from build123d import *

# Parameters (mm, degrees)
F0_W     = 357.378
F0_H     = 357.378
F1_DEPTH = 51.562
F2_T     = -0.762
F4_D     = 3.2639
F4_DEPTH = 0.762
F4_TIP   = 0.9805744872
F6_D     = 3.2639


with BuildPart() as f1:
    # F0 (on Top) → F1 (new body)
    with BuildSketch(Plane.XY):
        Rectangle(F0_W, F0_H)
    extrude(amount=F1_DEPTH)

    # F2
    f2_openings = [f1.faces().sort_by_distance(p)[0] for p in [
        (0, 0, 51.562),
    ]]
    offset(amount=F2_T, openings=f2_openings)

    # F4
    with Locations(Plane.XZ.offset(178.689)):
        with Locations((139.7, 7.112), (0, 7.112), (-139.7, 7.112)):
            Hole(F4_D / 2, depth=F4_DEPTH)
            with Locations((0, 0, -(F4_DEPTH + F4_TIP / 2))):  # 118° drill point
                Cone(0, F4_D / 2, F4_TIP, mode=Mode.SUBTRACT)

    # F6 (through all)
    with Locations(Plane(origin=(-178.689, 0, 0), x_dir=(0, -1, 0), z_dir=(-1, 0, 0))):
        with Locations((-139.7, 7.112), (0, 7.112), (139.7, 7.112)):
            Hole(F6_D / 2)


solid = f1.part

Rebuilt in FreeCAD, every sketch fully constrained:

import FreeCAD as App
import Part
import Sketcher
Q = App.Units.Quantity


def faces_at(feature, points):
    """Names of the faces that lie closest to the given points."""
    faces = feature.Shape.Faces
    near = lambda p: min(range(len(faces)), key=lambda i: faces[i].distToShape(Part.Vertex(*p))[0])
    return sorted({f"Face{near(p) + 1}" for p in points})

doc = App.newDocument("Part")
body = doc.addObject("PartDesign::Body", "Body")

# Sketch on XY plane
sketch1 = doc.addObject("Sketcher::SketchObject", "Sketch")
body.addObject(sketch1)
sketch1.AttachmentSupport = (doc.XY_Plane, [""])
sketch1.MapMode = "FlatFace"
sketch1.addGeometry(Part.LineSegment(App.Vector(-179, 179, 0), App.Vector(-179, -179, 0)), False)
sketch1.addGeometry(Part.LineSegment(App.Vector(-179, -179, 0), App.Vector(179, -179, 0)), False)
sketch1.addGeometry(Part.LineSegment(App.Vector(179, -179, 0), App.Vector(179, 179, 0)), False)
sketch1.addGeometry(Part.LineSegment(App.Vector(179, 179, 0), App.Vector(-179, 179, 0)), False)
sketch1.addConstraint(Sketcher.Constraint("Coincident", 0, 2, 1, 1))
sketch1.addConstraint(Sketcher.Constraint("Coincident", 1, 2, 2, 1))
sketch1.addConstraint(Sketcher.Constraint("Coincident", 2, 2, 3, 1))
sketch1.addConstraint(Sketcher.Constraint("Coincident", 3, 2, 0, 1))
sketch1.addConstraint(Sketcher.Constraint("Vertical", 0))
sketch1.addConstraint(Sketcher.Constraint("Horizontal", 1))
sketch1.addConstraint(Sketcher.Constraint("Vertical", 2))
sketch1.addConstraint(Sketcher.Constraint("Horizontal", 3))
sketch1.addConstraint(Sketcher.Constraint("Symmetric", 0, 2, 2, 2, -1, 1))
sketch1.addConstraint(Sketcher.Constraint("Equal", 3, 0))
sketch1.addConstraint(Sketcher.Constraint("DistanceX", 1, 1, 1, 2, Q("14.07 in")))
pad1 = doc.addObject("PartDesign::Pad", "Pad")
body.addObject(pad1)
pad1.Profile = sketch1
pad1.Length = Q("2.03 in")
doc.recompute()

thickness = doc.addObject("PartDesign::Thickness", "Thickness")
body.addObject(thickness)
thickness.Base = (pad1, faces_at(pad1, [(0, 0, 51.562)]))
thickness.Value = Q("0.03 in")
thickness.Reversed = True
thickness.Join = "Arc"

# Sketch on XZ plane
sketch2 = doc.addObject("Sketcher::SketchObject", "Sketch001")
body.addObject(sketch2)
sketch2.AttachmentSupport = (doc.XZ_Plane, [""])
sketch2.MapMode = "FlatFace"
sketch2.AttachmentOffset = App.Placement(App.Vector(0, 0, 7.035 * 25.4), App.Rotation())
sketch2.addGeometry(Part.Circle(App.Vector(139.7, 7.1, 0), App.Vector(0, 0, 1), 1.6), False)
sketch2.addGeometry(Part.Circle(App.Vector(0, 7.1, 0), App.Vector(0, 0, 1), 1.6), False)
sketch2.addGeometry(Part.Circle(App.Vector(-139.7, 7.1, 0), App.Vector(0, 0, 1), 1.6), False)
sketch2.addConstraint(Sketcher.Constraint("Equal", 0, 1))
sketch2.addConstraint(Sketcher.Constraint("Equal", 1, 2))
sketch2.addConstraint(Sketcher.Constraint("Symmetric", 0, 3, 2, 3, -2))
sketch2.addConstraint(Sketcher.Constraint("PointOnObject", 1, 3, -2))
sketch2.addConstraint(Sketcher.Constraint("Horizontal", 0, 3, 1, 3))
sketch2.addConstraint(Sketcher.Constraint("DistanceX", 2, 3, 0, 3, Q("11 in")))
sketch2.addConstraint(Sketcher.Constraint("Diameter", 0, Q("0.1285 in")))
sketch2.addConstraint(Sketcher.Constraint("DistanceY", -1, 1, 0, 3, Q("0.28 in")))
doc.recompute()
hole = doc.addObject("PartDesign::Hole", "Hole")
body.addObject(hole)
hole.Profile = sketch2
hole.ThreadType = "None"
hole.Diameter = Q("0.1285 in")
hole.DepthType = "Dimension"
hole.Depth = Q("0.03 in")
hole.DrillPoint = "Angled"
hole.DrillPointAngle = 118

# Sketch on YZ plane
sketch3 = doc.addObject("Sketcher::SketchObject", "Sketch002")
body.addObject(sketch3)
sketch3.AttachmentSupport = (doc.YZ_Plane, [""])
sketch3.MapMode = "FlatFace"
sketch3.AttachmentOffset = App.Placement(App.Vector(0, 0, -7.035 * 25.4), App.Rotation())
sketch3.addGeometry(Part.Circle(App.Vector(139.7, 7.1, 0), App.Vector(0, 0, 1), 1.6), False)
sketch3.addGeometry(Part.Circle(App.Vector(0, 7.1, 0), App.Vector(0, 0, 1), 1.6), False)
sketch3.addGeometry(Part.Circle(App.Vector(-139.7, 7.1, 0), App.Vector(0, 0, 1), 1.6), False)
sketch3.addConstraint(Sketcher.Constraint("Equal", 0, 1))
sketch3.addConstraint(Sketcher.Constraint("Equal", 1, 2))
sketch3.addConstraint(Sketcher.Constraint("Symmetric", 0, 3, 2, 3, -2))
sketch3.addConstraint(Sketcher.Constraint("PointOnObject", 1, 3, -2))
sketch3.addConstraint(Sketcher.Constraint("Horizontal", 0, 3, 1, 3))
sketch3.addConstraint(Sketcher.Constraint("DistanceX", 2, 3, 0, 3, Q("11 in")))
sketch3.addConstraint(Sketcher.Constraint("Diameter", 0, Q("0.1285 in")))
sketch3.addConstraint(Sketcher.Constraint("DistanceY", -1, 1, 0, 3, Q("0.28 in")))
doc.recompute()
hole2 = doc.addObject("PartDesign::Hole", "Hole001")
body.addObject(hole2)
hole2.Profile = sketch3
hole2.ThreadType = "None"
hole2.Diameter = Q("0.1285 in")
hole2.DepthType = "ThroughAll"
hole2.Reversed = True

doc.recompute()
